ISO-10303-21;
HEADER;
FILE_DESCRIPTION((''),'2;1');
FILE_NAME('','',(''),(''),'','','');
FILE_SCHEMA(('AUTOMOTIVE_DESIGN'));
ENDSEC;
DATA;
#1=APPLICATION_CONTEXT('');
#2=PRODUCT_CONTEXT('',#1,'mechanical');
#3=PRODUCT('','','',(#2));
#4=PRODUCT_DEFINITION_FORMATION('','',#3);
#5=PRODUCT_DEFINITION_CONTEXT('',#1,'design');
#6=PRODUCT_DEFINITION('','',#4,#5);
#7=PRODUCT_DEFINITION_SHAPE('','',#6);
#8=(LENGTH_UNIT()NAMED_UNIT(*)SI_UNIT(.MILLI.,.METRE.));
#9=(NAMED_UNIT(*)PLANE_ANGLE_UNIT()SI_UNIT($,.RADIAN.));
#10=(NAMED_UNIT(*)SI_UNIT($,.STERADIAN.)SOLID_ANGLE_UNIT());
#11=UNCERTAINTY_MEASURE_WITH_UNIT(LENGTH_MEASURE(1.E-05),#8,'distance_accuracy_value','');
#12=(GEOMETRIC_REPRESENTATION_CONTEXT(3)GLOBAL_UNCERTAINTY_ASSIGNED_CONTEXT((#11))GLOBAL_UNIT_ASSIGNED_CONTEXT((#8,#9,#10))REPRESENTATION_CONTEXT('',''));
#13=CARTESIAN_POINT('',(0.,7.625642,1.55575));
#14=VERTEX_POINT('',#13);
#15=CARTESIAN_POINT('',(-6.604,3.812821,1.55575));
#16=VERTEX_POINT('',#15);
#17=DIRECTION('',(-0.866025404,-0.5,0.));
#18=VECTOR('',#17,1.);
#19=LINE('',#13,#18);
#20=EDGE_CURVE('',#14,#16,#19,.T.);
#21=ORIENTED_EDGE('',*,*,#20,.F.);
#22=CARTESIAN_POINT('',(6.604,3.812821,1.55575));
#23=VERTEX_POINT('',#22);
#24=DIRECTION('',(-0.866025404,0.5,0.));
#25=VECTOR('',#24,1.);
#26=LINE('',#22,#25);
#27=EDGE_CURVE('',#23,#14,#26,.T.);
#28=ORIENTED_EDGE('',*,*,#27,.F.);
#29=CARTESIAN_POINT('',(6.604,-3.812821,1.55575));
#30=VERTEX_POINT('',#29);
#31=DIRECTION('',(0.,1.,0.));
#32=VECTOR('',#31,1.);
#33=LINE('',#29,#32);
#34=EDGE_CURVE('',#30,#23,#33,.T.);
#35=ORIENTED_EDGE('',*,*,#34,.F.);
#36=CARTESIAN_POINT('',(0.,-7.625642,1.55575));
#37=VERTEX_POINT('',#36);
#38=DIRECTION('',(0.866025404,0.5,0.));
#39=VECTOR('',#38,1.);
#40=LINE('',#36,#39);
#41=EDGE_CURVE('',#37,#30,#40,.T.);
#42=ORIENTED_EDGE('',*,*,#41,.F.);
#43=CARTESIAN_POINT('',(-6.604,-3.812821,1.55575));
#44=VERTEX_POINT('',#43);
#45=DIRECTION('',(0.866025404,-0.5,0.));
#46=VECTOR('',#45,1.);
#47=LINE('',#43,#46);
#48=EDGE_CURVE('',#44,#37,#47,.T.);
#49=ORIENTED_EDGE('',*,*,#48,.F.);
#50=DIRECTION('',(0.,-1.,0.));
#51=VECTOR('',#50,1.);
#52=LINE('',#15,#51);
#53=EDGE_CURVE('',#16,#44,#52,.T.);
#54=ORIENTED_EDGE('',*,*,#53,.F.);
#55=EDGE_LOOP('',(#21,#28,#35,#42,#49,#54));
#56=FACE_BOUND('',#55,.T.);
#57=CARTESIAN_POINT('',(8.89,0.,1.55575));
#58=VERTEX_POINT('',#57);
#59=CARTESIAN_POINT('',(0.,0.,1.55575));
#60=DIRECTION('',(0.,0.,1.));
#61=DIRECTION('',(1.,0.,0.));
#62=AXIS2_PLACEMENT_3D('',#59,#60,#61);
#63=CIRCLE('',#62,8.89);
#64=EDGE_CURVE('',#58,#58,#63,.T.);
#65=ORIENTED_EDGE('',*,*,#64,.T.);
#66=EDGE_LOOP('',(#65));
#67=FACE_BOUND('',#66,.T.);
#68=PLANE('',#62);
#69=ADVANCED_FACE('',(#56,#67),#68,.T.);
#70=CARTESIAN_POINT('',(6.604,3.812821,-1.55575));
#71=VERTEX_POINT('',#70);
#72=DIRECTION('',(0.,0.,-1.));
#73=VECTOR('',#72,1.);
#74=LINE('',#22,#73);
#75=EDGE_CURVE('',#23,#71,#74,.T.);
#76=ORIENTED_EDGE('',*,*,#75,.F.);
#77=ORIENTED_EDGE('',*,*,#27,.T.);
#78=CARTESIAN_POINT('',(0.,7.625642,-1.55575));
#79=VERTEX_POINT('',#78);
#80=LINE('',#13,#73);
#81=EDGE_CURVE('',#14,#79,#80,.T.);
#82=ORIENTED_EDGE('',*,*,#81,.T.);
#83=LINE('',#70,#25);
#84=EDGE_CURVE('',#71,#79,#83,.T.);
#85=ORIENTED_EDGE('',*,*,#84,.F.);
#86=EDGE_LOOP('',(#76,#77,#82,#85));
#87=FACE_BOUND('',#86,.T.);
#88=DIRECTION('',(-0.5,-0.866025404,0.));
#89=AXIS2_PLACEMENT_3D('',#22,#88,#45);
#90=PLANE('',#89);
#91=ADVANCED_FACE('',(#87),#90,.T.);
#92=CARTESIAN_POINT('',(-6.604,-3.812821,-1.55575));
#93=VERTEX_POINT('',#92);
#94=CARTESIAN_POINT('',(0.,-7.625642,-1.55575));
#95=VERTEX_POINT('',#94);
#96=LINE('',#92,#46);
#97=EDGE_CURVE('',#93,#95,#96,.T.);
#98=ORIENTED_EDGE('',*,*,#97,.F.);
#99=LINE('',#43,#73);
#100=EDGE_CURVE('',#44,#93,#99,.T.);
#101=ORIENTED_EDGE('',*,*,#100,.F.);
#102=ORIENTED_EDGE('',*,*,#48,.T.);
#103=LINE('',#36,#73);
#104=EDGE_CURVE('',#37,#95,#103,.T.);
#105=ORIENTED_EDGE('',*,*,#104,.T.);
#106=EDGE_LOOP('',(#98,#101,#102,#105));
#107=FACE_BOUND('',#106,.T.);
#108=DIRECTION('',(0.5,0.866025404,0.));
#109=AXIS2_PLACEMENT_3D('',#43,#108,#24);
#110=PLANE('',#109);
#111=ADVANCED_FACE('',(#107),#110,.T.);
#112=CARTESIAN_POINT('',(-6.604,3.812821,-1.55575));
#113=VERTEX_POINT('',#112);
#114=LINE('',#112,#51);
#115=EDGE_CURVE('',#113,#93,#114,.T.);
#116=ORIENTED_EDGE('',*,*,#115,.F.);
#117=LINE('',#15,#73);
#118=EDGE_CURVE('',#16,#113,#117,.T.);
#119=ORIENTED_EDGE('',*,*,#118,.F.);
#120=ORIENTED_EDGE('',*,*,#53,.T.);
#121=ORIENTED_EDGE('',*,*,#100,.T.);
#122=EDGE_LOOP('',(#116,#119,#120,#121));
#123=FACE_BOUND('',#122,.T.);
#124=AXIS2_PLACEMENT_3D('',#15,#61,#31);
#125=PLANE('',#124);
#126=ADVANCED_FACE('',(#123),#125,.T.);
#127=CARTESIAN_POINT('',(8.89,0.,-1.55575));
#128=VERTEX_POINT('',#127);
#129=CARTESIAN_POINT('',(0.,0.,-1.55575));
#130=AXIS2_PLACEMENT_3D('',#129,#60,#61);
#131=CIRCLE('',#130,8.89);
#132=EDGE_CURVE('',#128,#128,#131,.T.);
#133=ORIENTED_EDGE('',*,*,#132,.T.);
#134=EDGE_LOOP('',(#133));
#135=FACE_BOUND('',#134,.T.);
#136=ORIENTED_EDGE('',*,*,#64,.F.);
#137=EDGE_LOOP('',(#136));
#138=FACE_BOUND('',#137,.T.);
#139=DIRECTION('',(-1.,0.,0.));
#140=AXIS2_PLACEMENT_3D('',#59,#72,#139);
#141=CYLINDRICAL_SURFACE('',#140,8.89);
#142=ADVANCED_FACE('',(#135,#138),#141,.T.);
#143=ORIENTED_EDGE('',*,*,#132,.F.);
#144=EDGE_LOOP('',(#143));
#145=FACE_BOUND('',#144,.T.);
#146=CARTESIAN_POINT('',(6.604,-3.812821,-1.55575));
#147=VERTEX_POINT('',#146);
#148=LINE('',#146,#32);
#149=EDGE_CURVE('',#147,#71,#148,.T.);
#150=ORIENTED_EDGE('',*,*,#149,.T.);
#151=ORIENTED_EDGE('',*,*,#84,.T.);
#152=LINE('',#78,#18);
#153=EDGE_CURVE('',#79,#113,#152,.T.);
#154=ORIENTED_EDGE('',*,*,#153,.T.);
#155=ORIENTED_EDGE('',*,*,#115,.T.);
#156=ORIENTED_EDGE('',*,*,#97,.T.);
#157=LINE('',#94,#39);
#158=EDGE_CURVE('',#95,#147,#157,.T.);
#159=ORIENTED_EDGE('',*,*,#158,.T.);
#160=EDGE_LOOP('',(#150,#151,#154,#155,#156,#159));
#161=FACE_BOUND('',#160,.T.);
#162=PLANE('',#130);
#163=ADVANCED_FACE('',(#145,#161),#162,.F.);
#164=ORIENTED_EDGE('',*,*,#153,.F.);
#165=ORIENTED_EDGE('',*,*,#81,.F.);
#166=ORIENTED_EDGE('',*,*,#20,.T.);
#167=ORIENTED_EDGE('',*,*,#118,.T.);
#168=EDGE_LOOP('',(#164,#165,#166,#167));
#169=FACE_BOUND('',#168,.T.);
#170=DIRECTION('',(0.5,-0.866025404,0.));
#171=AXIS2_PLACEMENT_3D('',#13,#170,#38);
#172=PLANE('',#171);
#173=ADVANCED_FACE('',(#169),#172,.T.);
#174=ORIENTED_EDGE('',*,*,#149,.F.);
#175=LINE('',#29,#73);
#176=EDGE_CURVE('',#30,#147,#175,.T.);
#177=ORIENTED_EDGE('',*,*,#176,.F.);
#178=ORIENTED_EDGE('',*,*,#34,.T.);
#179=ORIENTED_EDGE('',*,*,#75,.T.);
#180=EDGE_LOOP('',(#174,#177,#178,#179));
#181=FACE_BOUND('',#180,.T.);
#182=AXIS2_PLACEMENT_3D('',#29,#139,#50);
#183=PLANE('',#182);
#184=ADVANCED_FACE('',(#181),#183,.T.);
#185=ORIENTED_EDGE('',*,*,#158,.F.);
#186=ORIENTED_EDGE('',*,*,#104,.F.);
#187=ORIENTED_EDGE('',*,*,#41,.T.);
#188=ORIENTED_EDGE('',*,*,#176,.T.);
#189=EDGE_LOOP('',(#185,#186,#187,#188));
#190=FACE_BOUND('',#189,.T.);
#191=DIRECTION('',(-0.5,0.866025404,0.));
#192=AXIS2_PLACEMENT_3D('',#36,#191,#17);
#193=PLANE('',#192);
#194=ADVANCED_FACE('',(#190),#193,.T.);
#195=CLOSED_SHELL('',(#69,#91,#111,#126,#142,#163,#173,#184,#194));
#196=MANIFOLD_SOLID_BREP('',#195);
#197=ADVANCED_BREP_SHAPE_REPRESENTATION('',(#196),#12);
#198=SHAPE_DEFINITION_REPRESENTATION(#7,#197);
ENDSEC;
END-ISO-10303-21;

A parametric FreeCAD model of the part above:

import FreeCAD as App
import Part
import Sketcher

V = App.Vector
Q = App.Units.Quantity


def add_polygon(sketch, points):
    """Adds a closed chain of lines whose ends are joined by coincident constraints."""
    first, n = sketch.GeometryCount, len(points)
    for a, b in zip(points, points[1:] + points[:1]):
        sketch.addGeometry(Part.LineSegment(App.Vector(*a, 0), App.Vector(*b, 0)), False)
    for i in range(n):
        sketch.addConstraint(Sketcher.Constraint("Coincident", first + i, 2, first + (i + 1) % n, 1))

doc = App.newDocument("Part")
body = doc.addObject("PartDesign::Body", "Body")

# Sketch on XY plane
sketch1 = body.newObject("Sketcher::SketchObject", "Sketch")
sketch1.AttachmentSupport = (doc.getObject("XY_Plane"), [""])
sketch1.MapMode = "FlatFace"
sketch1.addGeometry(Part.Circle(V(0, 0, 0), V(0, 0, 1), 8.89), False)  # 0
add_polygon(sketch1, [(-6.604, 3.812821), (0, 7.625642), (6.604, 3.812821), (6.604, -3.812821), (0, -7.625642), (-6.604, -3.812821)])  # lines 1-6
sketch1.addConstraint(Sketcher.Constraint("Vertical", 3))
sketch1.addConstraint(Sketcher.Constraint("Vertical", 6))
sketch1.addConstraint(Sketcher.Constraint("Coincident", 0, 3, -1, 1))
sketch1.addConstraint(Sketcher.Constraint("Symmetric", 1, 2, 4, 2, -1, 1))
sketch1.addConstraint(Sketcher.Constraint("Symmetric", 2, 2, 5, 2, -1, 1))
sketch1.addConstraint(Sketcher.Constraint("PointOnObject", 1, 2, -2))
sketch1.addConstraint(Sketcher.Constraint("Parallel", 1, 4))
sketch1.addConstraint(Sketcher.Constraint("Horizontal", 3, 2, 5, 2))
sketch1.addConstraint(Sketcher.Constraint("Diameter", 0, Q("0.7 in")))
sketch1.addConstraint(Sketcher.Constraint("Angle", 1, Q("30 deg")))
sketch1.addConstraint(Sketcher.Constraint("DistanceX", -1, 1, 2, 2, Q("0.26 in")))
sketch1.addConstraint(Sketcher.Constraint("DistanceY", 3, 2, 3, 1, Q("7.625642 mm")))
pad1 = body.newObject("PartDesign::Pad", "Pad")
pad1.Profile = sketch1
pad1.Length = Q("0.1225 in")
pad1.Midplane = True

doc.recompute()
